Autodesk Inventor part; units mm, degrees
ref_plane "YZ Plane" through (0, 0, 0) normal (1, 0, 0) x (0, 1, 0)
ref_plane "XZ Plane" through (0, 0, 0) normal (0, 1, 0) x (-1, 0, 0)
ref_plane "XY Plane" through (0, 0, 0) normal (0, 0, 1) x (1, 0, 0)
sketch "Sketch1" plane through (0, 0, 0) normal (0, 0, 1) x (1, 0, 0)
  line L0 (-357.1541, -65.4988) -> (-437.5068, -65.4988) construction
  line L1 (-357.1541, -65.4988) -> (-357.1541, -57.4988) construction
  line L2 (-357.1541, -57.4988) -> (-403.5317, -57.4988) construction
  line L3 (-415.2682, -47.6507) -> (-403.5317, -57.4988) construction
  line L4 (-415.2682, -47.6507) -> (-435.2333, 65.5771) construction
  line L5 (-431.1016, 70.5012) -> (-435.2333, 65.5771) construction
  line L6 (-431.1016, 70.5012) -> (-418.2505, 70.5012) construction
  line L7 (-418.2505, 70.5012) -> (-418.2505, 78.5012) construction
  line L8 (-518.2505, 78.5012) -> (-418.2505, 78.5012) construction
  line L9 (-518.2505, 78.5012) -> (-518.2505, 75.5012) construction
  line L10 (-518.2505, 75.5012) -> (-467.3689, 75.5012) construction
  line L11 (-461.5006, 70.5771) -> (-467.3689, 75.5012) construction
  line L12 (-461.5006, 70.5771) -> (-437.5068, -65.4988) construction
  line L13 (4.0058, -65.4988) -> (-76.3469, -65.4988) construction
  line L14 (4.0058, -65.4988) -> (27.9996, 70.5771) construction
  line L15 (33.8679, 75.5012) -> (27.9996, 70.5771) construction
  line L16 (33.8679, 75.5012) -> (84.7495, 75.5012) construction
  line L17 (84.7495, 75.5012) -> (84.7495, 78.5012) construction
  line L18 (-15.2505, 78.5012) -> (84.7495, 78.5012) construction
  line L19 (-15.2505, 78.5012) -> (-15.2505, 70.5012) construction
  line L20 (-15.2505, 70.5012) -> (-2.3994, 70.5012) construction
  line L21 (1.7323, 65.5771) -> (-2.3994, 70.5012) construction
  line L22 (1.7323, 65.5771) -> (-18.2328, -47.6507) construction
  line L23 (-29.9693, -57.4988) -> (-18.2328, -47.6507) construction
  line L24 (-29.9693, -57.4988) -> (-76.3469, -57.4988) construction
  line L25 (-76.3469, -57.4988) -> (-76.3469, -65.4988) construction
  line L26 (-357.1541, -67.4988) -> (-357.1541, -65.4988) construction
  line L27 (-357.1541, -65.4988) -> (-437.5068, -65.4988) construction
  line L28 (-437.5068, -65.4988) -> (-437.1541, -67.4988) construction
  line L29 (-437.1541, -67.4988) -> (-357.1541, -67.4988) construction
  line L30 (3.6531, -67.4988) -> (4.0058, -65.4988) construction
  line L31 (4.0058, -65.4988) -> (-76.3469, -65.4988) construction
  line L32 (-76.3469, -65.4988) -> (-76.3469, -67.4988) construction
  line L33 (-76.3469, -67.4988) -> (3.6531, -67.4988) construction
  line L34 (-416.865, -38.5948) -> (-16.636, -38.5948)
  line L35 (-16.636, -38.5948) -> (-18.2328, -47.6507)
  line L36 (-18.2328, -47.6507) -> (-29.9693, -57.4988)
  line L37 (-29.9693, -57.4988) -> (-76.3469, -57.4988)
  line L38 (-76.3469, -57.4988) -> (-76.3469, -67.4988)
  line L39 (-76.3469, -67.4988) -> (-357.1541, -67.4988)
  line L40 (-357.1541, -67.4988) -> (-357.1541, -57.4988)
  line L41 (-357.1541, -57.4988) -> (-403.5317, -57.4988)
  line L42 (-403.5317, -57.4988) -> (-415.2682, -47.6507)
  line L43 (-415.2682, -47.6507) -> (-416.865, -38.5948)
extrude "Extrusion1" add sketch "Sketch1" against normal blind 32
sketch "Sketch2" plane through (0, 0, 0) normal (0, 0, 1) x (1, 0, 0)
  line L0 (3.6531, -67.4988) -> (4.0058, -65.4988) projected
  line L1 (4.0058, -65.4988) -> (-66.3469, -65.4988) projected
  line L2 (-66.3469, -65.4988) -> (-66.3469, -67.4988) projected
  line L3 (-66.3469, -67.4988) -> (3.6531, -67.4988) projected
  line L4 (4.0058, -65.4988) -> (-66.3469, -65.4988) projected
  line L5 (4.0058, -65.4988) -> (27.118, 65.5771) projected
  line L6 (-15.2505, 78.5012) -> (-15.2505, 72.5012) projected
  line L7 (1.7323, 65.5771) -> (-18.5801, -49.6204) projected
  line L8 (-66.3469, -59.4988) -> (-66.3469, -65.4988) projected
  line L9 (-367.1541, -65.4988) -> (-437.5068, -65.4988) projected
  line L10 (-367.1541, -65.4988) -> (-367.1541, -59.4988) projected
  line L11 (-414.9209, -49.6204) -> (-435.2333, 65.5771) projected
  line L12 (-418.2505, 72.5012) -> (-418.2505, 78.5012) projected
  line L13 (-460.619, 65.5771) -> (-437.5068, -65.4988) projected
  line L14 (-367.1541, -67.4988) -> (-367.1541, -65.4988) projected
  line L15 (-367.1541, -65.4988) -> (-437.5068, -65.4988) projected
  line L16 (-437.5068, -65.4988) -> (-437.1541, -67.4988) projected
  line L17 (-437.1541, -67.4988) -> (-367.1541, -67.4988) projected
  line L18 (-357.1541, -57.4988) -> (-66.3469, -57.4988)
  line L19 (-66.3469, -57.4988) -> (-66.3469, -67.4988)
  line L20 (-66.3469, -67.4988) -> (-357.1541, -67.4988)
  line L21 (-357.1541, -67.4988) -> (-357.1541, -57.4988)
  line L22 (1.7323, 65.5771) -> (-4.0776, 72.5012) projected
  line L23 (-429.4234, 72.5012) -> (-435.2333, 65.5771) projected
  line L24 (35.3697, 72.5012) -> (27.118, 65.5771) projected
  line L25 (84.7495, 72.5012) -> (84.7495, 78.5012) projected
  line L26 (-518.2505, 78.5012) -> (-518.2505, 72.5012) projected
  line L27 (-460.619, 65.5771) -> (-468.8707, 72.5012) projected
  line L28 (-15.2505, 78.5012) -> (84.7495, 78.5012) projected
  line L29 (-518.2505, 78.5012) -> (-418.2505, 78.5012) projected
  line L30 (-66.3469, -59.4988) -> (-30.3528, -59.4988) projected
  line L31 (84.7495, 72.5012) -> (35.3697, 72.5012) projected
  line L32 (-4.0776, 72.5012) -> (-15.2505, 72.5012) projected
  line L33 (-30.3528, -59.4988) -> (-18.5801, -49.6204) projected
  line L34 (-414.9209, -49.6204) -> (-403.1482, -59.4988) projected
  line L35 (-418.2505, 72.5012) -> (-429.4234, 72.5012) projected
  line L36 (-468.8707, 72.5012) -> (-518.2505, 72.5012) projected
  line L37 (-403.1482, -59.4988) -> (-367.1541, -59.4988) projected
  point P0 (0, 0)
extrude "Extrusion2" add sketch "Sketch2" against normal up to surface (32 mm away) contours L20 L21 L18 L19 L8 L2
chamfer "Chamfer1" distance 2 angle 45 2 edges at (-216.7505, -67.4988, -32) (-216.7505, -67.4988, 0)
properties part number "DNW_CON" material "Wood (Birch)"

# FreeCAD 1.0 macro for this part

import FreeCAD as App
import Part
import Sketcher
from FreeCAD import Vector
Q = App.Units.Quantity


def edges_at(feature, points):
    """Names of the edges that pass closest to the given points."""
    edges = feature.Shape.Edges
    near = lambda p: min(range(len(edges)), key=lambda i: edges[i].distToShape(Part.Vertex(*p))[0])
    return sorted({f"Edge{near(p) + 1}" for p in points})


def add_polygon(sketch, points):
    """Adds a closed chain of lines whose ends are joined by coincident constraints."""
    first, n = sketch.GeometryCount, len(points)
    for a, b in zip(points, points[1:] + points[:1]):
        sketch.addGeometry(Part.LineSegment(App.Vector(*a, 0), App.Vector(*b, 0)), False)
    for i in range(n):
        sketch.addConstraint(Sketcher.Constraint("Coincident", first + i, 2, first + (i + 1) % n, 1))

doc = App.newDocument("Part")
body = doc.addObject("PartDesign::Body", "Body")

# Sketch on XY plane
sketch1 = body.newObject("Sketcher::SketchObject", "Sketch")
sketch1.AttachmentSupport = (doc.getObject("XY_Plane"), [""])
sketch1.MapMode = "FlatFace"
add_polygon(sketch1, [(-16.636, -38.5948), (-416.865, -38.5948), (-415.2682, -47.6507), (-403.5317, -57.4988), (-357.1541, -57.4988), (-357.1541, -67.4988), (-76.3469, -67.4988), (-76.3469, -57.4988), (-29.9693, -57.4988), (-18.2328, -47.6507)])  # lines 0-9
sketch1.addConstraint(Sketcher.Constraint("Horizontal", 0))
sketch1.addConstraint(Sketcher.Constraint("Horizontal", 3))
sketch1.addConstraint(Sketcher.Constraint("Vertical", 4))
sketch1.addConstraint(Sketcher.Constraint("Horizontal", 5))
sketch1.addConstraint(Sketcher.Constraint("Vertical", 6))
sketch1.addConstraint(Sketcher.Constraint("Horizontal", 7))
sketch1.addConstraint(Sketcher.Constraint("Horizontal", 3, 2, 6, 2))
sketch1.addConstraint(Sketcher.Constraint("Horizontal", 1, 2, 8, 2))
sketch1.addConstraint(Sketcher.Constraint("Equal", 3, 7))
sketch1.addConstraint(Sketcher.Constraint("Equal", 2, 8))
sketch1.addConstraint(Sketcher.Constraint("Equal", 1, 9))
sketch1.addConstraint(Sketcher.Constraint("DistanceY", 4, 2, 4, 1, 10.0))
sketch1.addConstraint(Sketcher.Constraint("Angle", 1, Q("-80 deg")))
sketch1.addConstraint(Sketcher.Constraint("Angle", 2, Q("-40 deg")))
sketch1.addConstraint(Sketcher.Constraint("DistanceX", 0, 2, 0, 1, 400.229))
sketch1.addConstraint(Sketcher.Constraint("Distance", 2, 15.321))
sketch1.addConstraint(Sketcher.Constraint("DistanceX", 3, 1, 3, 2, 46.3776))
sketch1.addConstraint(Sketcher.Constraint("DistanceX", 5, 1, 5, 2, 280.8072))
sketch1.addConstraint(Sketcher.Constraint("DistanceX", 0, 2, -1, 1, 416.865))
sketch1.addConstraint(Sketcher.Constraint("DistanceY", 0, 2, -1, 1, 38.5948))
pad1 = body.newObject("PartDesign::Pad", "Pad")
pad1.Profile = sketch1
pad1.Length = 32
pad1.Reversed = True

# Sketch on XY plane
sketch2 = body.newObject("Sketcher::SketchObject", "Sketch001")
sketch2.AttachmentSupport = (doc.getObject("XY_Plane"), [""])
sketch2.MapMode = "FlatFace"
add_polygon(sketch2, [(-357.1541, -67.4988), (-66.3469, -67.4988), (-66.3469, -57.4988), (-357.1541, -57.4988)])  # lines 0-3
sketch2.addConstraint(Sketcher.Constraint("Horizontal", 0))
sketch2.addConstraint(Sketcher.Constraint("Vertical", 1))
sketch2.addConstraint(Sketcher.Constraint("Horizontal", 2))
sketch2.addConstraint(Sketcher.Constraint("Vertical", 3))
sketch2.addConstraint(Sketcher.Constraint("DistanceY", 1, 1, 1, 2, 10.0))
sketch2.addConstraint(Sketcher.Constraint("DistanceX", 0, 1, 0, 2, 290.8072))
sketch2.addConstraint(Sketcher.Constraint("DistanceX", 0, 2, -1, 1, 66.347))
sketch2.addConstraint(Sketcher.Constraint("DistanceY", 0, 2, -1, 1, 67.4988))
pad2 = body.newObject("PartDesign::Pad", "Pad001")
pad2.Profile = sketch2
pad2.Length = 32
pad2.Reversed = True
doc.recompute()

chamfer = body.newObject("PartDesign::Chamfer", "Chamfer")
chamfer.Base = (pad2, edges_at(pad2, [(-216.75, -67.499, -32), (-216.75, -67.499, 0)]))
chamfer.Size = 2

doc.recompute()
